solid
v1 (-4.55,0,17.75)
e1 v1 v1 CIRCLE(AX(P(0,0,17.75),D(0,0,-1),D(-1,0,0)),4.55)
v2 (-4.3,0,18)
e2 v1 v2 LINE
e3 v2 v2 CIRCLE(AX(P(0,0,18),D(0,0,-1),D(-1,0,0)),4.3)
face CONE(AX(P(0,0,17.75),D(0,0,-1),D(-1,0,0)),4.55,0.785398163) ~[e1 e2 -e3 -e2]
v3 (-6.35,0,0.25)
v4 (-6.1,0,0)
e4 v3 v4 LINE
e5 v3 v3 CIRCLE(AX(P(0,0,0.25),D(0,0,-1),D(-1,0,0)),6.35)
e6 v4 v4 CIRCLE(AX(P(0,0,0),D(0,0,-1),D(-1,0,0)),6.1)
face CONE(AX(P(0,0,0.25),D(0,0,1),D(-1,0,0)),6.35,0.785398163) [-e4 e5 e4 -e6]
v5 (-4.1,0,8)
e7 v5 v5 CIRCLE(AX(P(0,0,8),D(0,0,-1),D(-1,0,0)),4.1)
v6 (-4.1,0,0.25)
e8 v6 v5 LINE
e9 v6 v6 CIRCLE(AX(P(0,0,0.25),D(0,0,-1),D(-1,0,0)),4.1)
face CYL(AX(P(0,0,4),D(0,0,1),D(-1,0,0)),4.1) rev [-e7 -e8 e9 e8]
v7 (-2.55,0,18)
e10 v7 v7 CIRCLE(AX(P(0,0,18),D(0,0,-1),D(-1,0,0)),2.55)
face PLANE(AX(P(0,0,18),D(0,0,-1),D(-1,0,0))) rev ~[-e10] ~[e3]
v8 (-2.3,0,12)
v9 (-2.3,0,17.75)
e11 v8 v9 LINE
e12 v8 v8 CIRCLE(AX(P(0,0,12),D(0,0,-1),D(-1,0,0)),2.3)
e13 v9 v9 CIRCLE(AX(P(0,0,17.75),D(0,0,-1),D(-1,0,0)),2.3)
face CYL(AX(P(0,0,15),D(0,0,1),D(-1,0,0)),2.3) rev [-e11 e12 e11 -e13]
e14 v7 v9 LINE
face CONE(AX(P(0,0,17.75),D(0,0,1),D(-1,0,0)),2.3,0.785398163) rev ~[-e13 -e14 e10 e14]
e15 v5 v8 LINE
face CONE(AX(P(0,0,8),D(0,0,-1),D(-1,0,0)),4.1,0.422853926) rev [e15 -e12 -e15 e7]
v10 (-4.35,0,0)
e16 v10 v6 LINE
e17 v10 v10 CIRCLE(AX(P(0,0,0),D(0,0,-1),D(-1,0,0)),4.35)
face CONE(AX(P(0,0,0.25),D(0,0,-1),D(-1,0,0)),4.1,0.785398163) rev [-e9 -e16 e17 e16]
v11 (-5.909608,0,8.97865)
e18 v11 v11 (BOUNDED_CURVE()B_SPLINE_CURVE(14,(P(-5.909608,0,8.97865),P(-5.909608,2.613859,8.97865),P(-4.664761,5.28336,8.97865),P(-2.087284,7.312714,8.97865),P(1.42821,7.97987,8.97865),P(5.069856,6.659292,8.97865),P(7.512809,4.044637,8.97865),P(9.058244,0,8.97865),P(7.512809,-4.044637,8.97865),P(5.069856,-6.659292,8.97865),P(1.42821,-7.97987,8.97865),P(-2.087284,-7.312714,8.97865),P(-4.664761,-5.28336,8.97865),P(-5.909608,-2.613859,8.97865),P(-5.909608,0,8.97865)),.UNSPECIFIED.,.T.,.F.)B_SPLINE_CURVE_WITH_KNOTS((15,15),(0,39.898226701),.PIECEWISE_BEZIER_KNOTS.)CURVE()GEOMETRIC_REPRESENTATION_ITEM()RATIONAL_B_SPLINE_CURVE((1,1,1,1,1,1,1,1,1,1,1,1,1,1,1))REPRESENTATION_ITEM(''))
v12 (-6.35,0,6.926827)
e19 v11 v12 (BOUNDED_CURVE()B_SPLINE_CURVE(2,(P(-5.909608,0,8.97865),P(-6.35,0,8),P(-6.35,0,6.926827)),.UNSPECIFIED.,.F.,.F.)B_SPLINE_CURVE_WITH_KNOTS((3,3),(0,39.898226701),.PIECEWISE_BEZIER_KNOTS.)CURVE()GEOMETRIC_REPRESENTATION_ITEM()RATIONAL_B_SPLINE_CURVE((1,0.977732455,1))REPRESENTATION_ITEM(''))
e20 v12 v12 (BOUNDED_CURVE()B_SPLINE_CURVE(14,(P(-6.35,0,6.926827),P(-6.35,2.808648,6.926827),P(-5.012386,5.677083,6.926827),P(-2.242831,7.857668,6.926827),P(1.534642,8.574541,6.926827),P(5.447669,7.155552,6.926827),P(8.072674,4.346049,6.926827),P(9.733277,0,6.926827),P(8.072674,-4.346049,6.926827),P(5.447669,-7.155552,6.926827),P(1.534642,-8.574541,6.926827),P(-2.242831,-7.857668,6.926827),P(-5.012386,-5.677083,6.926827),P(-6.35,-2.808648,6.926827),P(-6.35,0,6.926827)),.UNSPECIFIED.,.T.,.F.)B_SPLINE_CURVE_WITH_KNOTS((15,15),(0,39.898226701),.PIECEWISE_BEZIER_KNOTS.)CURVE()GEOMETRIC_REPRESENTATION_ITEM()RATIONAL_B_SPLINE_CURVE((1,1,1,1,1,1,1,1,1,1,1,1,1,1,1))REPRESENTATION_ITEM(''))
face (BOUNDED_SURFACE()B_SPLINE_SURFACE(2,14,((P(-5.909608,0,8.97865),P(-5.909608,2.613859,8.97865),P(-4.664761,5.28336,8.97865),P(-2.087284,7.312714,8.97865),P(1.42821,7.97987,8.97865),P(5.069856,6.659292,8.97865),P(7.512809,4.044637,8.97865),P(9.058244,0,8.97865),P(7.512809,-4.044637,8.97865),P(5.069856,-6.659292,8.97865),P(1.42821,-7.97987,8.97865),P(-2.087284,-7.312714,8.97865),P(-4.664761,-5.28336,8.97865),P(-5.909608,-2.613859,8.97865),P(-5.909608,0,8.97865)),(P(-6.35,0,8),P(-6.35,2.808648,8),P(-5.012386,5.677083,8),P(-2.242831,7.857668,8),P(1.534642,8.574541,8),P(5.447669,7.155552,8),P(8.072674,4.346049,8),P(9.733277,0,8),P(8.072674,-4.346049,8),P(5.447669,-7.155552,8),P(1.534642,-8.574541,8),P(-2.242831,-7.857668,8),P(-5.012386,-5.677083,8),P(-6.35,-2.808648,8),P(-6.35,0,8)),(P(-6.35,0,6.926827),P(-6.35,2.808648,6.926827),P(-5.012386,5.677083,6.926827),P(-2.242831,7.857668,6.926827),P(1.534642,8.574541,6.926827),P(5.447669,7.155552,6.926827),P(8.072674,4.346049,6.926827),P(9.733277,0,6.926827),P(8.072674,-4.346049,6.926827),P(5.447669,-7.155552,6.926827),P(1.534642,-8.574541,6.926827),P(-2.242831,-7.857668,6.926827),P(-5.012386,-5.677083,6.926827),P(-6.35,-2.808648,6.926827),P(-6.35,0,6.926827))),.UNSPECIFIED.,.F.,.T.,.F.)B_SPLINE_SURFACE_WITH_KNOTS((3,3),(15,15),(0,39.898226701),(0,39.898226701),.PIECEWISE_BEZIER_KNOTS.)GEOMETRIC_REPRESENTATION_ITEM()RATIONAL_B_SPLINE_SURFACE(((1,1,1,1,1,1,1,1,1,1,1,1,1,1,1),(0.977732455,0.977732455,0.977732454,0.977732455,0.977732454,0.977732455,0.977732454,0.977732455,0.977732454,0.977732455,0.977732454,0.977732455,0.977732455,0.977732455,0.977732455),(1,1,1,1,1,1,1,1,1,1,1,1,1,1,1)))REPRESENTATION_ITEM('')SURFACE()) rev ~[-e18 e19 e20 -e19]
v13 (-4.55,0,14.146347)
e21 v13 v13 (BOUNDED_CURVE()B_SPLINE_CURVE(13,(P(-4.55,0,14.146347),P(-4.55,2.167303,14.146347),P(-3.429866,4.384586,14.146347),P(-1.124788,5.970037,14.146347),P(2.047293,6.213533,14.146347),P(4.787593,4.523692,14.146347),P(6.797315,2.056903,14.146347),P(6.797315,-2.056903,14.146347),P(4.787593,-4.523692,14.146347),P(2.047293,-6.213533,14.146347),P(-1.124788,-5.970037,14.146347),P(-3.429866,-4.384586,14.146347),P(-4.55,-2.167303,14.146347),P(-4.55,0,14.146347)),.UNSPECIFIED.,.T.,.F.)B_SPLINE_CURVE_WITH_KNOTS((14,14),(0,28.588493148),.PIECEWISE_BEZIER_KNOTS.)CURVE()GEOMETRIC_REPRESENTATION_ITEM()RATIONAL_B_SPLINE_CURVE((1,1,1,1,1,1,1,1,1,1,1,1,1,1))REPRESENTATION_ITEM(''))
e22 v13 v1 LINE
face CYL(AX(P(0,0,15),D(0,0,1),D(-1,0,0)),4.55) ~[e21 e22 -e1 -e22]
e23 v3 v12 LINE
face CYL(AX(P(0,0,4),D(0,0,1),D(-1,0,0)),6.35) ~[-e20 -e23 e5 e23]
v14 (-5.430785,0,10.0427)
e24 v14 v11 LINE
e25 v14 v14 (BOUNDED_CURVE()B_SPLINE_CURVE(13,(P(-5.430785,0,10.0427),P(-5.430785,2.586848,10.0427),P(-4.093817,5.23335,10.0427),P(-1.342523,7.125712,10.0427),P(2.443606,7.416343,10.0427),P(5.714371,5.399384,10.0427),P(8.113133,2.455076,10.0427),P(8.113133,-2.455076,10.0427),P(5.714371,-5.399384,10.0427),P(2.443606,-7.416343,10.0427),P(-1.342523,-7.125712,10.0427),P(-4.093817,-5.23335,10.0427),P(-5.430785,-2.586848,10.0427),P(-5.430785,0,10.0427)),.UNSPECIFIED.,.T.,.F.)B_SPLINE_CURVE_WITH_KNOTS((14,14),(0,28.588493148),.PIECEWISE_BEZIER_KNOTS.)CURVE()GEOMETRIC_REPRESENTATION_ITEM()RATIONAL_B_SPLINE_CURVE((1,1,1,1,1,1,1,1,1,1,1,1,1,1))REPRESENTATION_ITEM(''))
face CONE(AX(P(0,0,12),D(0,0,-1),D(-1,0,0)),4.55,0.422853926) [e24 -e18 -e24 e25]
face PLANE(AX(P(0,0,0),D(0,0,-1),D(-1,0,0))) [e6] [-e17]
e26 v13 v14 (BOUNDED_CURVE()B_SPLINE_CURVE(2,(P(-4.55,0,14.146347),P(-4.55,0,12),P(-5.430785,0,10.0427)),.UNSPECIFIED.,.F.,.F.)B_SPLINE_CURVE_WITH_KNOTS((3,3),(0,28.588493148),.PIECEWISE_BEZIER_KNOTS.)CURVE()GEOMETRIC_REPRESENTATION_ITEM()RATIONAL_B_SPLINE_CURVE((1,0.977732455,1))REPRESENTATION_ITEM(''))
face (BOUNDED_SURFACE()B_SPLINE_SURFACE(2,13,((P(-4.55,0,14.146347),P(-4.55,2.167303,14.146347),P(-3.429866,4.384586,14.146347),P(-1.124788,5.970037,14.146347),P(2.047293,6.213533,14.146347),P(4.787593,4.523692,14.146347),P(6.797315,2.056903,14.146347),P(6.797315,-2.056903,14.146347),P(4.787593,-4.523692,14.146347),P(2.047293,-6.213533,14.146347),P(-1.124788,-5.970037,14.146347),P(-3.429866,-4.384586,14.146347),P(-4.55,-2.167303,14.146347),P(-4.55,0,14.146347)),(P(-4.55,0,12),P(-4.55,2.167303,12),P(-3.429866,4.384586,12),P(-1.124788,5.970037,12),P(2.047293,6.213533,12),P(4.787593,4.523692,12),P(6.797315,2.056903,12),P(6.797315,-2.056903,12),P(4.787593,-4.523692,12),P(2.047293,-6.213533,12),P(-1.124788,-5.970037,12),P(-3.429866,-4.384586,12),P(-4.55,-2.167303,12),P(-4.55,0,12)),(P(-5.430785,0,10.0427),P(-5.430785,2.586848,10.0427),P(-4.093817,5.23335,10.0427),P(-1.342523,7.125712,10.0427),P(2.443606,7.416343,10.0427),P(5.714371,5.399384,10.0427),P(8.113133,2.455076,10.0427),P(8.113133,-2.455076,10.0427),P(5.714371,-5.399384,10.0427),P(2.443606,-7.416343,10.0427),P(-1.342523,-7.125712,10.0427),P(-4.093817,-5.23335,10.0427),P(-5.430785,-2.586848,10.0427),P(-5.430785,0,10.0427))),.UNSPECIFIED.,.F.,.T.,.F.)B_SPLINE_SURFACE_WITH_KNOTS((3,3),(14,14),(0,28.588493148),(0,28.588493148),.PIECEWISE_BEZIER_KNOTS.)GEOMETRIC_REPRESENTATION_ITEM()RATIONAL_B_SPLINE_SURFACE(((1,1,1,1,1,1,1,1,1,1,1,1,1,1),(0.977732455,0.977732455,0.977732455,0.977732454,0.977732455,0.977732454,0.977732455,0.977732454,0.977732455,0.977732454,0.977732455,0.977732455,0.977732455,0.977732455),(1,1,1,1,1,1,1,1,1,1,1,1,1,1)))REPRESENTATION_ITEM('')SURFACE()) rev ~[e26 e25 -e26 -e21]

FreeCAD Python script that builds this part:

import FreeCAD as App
import Part
import Sketcher
from FreeCAD import Vector
Q = App.Units.Quantity


def edges_at(feature, points):
    """Names of the edges that pass closest to the given points."""
    edges = feature.Shape.Edges
    near = lambda p: min(range(len(edges)), key=lambda i: edges[i].distToShape(Part.Vertex(*p))[0])
    return sorted({f"Edge{near(p) + 1}" for p in points})

doc = App.newDocument("Part")
body = doc.addObject("PartDesign::Body", "Body")

sketch1 = body.newObject("Sketcher::SketchObject", "Sketch")
sketch1.AttachmentSupport = (doc.getObject("XZ_Plane"), [""])
sketch1.MapMode = "FlatFace"
sketch1.addGeometry(Part.LineSegment(Vector(-4.5, 18, 0), Vector(-4.5, 12, 0)), False)
sketch1.addGeometry(Part.LineSegment(Vector(-4.5, 12, 0), Vector(-6.3, 8, 0)), False)
sketch1.addGeometry(Part.LineSegment(Vector(-6.3, 8, 0), Vector(-6.3, 0, 0)), False)
sketch1.addGeometry(Part.LineSegment(Vector(-6.3, 0, 0), Vector(-4.1, 0, 0)), False)
sketch1.addGeometry(Part.LineSegment(Vector(-4.1, 0, 0), Vector(-4.1, 8, 0)), False)
sketch1.addGeometry(Part.LineSegment(Vector(-4.1, 8, 0), Vector(-2.3, 12, 0)), False)
sketch1.addGeometry(Part.LineSegment(Vector(-2.3, 12, 0), Vector(-2.3, 18, 0)), False)
sketch1.addGeometry(Part.LineSegment(Vector(-2.3, 18, 0), Vector(-4.5, 18, 0)), False)
sketch1.addConstraint(Sketcher.Constraint("Coincident", 0, 2, 1, 1))
sketch1.addConstraint(Sketcher.Constraint("Coincident", 1, 2, 2, 1))
sketch1.addConstraint(Sketcher.Constraint("Coincident", 2, 2, 3, 1))
sketch1.addConstraint(Sketcher.Constraint("Coincident", 3, 2, 4, 1))
sketch1.addConstraint(Sketcher.Constraint("Coincident", 4, 2, 5, 1))
sketch1.addConstraint(Sketcher.Constraint("Coincident", 5, 2, 6, 1))
sketch1.addConstraint(Sketcher.Constraint("Coincident", 6, 2, 7, 1))
sketch1.addConstraint(Sketcher.Constraint("Coincident", 7, 2, 0, 1))
sketch1.addConstraint(Sketcher.Constraint("Vertical", 0))
sketch1.addConstraint(Sketcher.Constraint("Vertical", 2))
sketch1.addConstraint(Sketcher.Constraint("Horizontal", 3))
sketch1.addConstraint(Sketcher.Constraint("Vertical", 4))
sketch1.addConstraint(Sketcher.Constraint("Vertical", 6))
sketch1.addConstraint(Sketcher.Constraint("Horizontal", 7))
sketch1.addConstraint(Sketcher.Constraint("PointOnObject", 2, 2, -1))
sketch1.addConstraint(Sketcher.Constraint("Parallel", 1, 5))
sketch1.addConstraint(Sketcher.Constraint("Horizontal", 1, 2, 4, 2))
sketch1.addConstraint(Sketcher.Constraint("Horizontal", 0, 2, 5, 2))
sketch1.addConstraint(Sketcher.Constraint("DistanceY", 0, 2, 0, 1, Q("6 mm")))
sketch1.addConstraint(Sketcher.Constraint("DistanceY", 2, 2, 2, 1, Q("8 mm")))
sketch1.addConstraint(Sketcher.Constraint("DistanceY", -1, 1, 0, 2, Q("12 mm")))
sketch1.addConstraint(Sketcher.Constraint("DistanceX", 3, 1, 3, 2, Q("2.25 mm")))
sketch1.addConstraint(Sketcher.Constraint("DistanceX", 3, 2, -1, 1, Q("4.1 mm")))
sketch1.addConstraint(Sketcher.Constraint("DistanceX", 5, 2, -1, 1, Q("2.3 mm")))
revolution = body.newObject("PartDesign::Revolution", "Revolution")
revolution.Profile = sketch1
revolution.ReferenceAxis = (sketch1, ["V_Axis"])
revolution.Angle = 360
doc.recompute()

chamfer = body.newObject("PartDesign::Chamfer", "Chamfer")
chamfer.Base = (revolution, edges_at(revolution, [(6.35, 0, 0), (4.1, 0, 0)]))
chamfer.Size = 0.25
doc.recompute()

chamfer2 = body.newObject("PartDesign::Chamfer", "Chamfer001")
chamfer2.Base = (chamfer, edges_at(chamfer, [(2.3, 0, 18), (4.55, 0, 18)]))
chamfer2.Size = 0.25
doc.recompute()

fillet = body.newObject("PartDesign::Fillet", "Fillet")
fillet.Base = (chamfer2, edges_at(chamfer2, [(4.55, 0, 12)]))
fillet.Radius = 10
doc.recompute()

fillet2 = body.newObject("PartDesign::Fillet", "Fillet001")
fillet2.Base = (fillet, edges_at(fillet, [(6.35, 0, 8)]))
fillet2.Radius = 5

doc.recompute()
